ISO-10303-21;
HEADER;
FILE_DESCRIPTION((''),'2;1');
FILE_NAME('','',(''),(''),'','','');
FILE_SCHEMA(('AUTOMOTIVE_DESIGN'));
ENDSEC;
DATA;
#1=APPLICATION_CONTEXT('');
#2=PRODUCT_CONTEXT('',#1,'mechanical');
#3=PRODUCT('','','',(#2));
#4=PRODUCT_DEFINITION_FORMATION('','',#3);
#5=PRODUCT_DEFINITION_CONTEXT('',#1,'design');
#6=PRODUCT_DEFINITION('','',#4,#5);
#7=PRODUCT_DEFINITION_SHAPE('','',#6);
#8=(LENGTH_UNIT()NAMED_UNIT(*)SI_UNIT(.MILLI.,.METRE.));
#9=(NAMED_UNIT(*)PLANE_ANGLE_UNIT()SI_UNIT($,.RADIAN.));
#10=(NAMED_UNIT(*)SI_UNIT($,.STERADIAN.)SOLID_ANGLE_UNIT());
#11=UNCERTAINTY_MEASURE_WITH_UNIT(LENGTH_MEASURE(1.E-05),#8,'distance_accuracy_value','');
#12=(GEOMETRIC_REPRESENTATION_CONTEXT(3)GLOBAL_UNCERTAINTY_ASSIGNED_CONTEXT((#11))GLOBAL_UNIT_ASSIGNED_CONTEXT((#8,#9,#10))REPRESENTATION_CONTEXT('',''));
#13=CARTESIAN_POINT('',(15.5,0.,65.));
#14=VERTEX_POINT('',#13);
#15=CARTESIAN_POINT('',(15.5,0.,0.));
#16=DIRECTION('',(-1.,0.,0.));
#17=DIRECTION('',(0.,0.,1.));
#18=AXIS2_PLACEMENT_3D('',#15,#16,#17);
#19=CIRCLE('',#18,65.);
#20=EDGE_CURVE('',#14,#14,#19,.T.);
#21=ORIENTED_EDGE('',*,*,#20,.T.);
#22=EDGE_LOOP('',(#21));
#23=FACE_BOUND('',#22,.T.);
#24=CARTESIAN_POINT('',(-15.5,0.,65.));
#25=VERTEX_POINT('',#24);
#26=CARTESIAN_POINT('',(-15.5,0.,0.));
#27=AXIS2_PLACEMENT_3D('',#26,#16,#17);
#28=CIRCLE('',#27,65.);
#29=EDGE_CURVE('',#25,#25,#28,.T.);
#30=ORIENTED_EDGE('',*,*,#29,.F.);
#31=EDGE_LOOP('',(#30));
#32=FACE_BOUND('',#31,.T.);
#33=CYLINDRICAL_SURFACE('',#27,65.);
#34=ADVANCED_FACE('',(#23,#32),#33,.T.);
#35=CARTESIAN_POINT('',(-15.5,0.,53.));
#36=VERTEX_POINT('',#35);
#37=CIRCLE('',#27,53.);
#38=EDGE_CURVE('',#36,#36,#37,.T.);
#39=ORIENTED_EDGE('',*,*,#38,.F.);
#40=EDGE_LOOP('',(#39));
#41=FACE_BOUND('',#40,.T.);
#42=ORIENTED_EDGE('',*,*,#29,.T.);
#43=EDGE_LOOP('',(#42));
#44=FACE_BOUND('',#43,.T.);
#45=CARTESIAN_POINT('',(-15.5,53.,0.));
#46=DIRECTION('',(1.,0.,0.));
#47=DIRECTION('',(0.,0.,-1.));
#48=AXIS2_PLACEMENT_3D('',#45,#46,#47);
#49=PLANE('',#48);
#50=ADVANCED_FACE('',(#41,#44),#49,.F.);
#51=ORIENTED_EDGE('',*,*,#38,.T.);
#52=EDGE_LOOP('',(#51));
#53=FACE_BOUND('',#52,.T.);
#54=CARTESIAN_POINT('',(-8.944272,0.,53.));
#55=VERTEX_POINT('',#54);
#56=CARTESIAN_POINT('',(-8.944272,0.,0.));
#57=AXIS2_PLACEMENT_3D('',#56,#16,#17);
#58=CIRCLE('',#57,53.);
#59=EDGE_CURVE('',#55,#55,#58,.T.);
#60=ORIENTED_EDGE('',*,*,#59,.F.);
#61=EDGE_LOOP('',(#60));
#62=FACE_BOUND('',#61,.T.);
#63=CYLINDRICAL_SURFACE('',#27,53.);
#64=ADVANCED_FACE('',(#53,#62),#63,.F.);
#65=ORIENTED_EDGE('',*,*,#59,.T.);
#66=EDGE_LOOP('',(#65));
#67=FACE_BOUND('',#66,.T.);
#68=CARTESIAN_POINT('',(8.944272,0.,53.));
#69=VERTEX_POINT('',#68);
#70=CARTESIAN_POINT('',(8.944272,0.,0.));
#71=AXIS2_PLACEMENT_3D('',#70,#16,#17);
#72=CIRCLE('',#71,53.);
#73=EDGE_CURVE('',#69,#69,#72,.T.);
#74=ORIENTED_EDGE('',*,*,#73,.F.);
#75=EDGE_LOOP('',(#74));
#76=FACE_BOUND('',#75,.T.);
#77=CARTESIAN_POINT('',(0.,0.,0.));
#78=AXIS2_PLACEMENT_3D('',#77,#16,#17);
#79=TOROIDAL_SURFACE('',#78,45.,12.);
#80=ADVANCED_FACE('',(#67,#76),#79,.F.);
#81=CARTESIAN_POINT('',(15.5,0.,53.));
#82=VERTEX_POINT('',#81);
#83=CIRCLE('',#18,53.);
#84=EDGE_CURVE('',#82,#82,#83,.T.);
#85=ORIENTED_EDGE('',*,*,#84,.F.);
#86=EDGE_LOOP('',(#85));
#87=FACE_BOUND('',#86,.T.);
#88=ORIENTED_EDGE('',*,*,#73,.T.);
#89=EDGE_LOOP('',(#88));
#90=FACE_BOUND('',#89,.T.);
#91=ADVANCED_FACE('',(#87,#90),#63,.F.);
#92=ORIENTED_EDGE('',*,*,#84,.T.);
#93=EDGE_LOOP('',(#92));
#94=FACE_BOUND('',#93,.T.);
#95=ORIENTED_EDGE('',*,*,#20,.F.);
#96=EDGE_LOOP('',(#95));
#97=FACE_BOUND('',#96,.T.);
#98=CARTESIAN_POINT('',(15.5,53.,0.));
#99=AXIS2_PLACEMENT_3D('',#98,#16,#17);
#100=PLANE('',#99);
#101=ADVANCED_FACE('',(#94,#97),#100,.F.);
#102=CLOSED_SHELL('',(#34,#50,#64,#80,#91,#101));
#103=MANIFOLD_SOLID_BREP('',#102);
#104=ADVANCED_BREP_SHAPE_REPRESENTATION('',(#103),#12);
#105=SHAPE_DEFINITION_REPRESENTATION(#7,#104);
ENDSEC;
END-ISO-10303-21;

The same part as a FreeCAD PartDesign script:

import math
import FreeCAD as App
import Part
import Sketcher
from FreeCAD import Vector

doc = App.newDocument("Part")
body = doc.addObject("PartDesign::Body", "Body")

# Sketch on XY plane
sketch1 = body.newObject("Sketcher::SketchObject", "Sketch")
sketch1.AttachmentSupport = (doc.getObject("XY_Plane"), [""])
sketch1.MapMode = "FlatFace"
sketch1.addGeometry([
    Part.LineSegment(Vector(-16, 53, 0), Vector(-9, 53, 0)),  # 0
    Part.ArcOfCircle(Part.Circle(Vector(0, 45, 0), Vector(0, 0, 1), 12), math.radians(42), math.radians(138)),  # 1
    Part.LineSegment(Vector(9, 53, 0), Vector(16, 53, 0)),  # 2
    Part.LineSegment(Vector(16, 53, 0), Vector(16, 65, 0)),  # 3
    Part.LineSegment(Vector(16, 65, 0), Vector(-16, 65, 0)),  # 4
    Part.LineSegment(Vector(-16, 65, 0), Vector(-16, 53, 0)),  # 5
], False)
sketch1.addConstraint([
    Sketcher.Constraint("Coincident", 0, 2, 1, 2),
    Sketcher.Constraint("Coincident", 1, 1, 2, 1),
    Sketcher.Constraint("Coincident", 2, 2, 3, 1),
    Sketcher.Constraint("Coincident", 3, 2, 4, 1),
    Sketcher.Constraint("Coincident", 4, 2, 5, 1),
    Sketcher.Constraint("Coincident", 5, 2, 0, 1),
    Sketcher.Constraint("Horizontal", 0),
    Sketcher.Constraint("Horizontal", 2),
    Sketcher.Constraint("Vertical", 3),
    Sketcher.Constraint("Horizontal", 4),
    Sketcher.Constraint("Vertical", 5),
    Sketcher.Constraint("Symmetric", 0, 2, 1, 1, -2),
    Sketcher.Constraint("Equal", 0, 2),
    Sketcher.Constraint("Radius", 1, 12.0),
    Sketcher.Constraint("DistanceX", 4, 2, 4, 1, 31.0),
    Sketcher.Constraint("DistanceY", 3, 1, 3, 2, 12.0),
    Sketcher.Constraint("DistanceY", -1, 1, 1, 3, 45.0),
    Sketcher.Constraint("DistanceY", -1, 1, 0, 2, 53.0),
])
revolution = body.newObject("PartDesign::Revolution", "Revolution")
revolution.Profile = sketch1
revolution.ReferenceAxis = (sketch1, ["H_Axis"])
revolution.Angle = 360

doc.recompute()
